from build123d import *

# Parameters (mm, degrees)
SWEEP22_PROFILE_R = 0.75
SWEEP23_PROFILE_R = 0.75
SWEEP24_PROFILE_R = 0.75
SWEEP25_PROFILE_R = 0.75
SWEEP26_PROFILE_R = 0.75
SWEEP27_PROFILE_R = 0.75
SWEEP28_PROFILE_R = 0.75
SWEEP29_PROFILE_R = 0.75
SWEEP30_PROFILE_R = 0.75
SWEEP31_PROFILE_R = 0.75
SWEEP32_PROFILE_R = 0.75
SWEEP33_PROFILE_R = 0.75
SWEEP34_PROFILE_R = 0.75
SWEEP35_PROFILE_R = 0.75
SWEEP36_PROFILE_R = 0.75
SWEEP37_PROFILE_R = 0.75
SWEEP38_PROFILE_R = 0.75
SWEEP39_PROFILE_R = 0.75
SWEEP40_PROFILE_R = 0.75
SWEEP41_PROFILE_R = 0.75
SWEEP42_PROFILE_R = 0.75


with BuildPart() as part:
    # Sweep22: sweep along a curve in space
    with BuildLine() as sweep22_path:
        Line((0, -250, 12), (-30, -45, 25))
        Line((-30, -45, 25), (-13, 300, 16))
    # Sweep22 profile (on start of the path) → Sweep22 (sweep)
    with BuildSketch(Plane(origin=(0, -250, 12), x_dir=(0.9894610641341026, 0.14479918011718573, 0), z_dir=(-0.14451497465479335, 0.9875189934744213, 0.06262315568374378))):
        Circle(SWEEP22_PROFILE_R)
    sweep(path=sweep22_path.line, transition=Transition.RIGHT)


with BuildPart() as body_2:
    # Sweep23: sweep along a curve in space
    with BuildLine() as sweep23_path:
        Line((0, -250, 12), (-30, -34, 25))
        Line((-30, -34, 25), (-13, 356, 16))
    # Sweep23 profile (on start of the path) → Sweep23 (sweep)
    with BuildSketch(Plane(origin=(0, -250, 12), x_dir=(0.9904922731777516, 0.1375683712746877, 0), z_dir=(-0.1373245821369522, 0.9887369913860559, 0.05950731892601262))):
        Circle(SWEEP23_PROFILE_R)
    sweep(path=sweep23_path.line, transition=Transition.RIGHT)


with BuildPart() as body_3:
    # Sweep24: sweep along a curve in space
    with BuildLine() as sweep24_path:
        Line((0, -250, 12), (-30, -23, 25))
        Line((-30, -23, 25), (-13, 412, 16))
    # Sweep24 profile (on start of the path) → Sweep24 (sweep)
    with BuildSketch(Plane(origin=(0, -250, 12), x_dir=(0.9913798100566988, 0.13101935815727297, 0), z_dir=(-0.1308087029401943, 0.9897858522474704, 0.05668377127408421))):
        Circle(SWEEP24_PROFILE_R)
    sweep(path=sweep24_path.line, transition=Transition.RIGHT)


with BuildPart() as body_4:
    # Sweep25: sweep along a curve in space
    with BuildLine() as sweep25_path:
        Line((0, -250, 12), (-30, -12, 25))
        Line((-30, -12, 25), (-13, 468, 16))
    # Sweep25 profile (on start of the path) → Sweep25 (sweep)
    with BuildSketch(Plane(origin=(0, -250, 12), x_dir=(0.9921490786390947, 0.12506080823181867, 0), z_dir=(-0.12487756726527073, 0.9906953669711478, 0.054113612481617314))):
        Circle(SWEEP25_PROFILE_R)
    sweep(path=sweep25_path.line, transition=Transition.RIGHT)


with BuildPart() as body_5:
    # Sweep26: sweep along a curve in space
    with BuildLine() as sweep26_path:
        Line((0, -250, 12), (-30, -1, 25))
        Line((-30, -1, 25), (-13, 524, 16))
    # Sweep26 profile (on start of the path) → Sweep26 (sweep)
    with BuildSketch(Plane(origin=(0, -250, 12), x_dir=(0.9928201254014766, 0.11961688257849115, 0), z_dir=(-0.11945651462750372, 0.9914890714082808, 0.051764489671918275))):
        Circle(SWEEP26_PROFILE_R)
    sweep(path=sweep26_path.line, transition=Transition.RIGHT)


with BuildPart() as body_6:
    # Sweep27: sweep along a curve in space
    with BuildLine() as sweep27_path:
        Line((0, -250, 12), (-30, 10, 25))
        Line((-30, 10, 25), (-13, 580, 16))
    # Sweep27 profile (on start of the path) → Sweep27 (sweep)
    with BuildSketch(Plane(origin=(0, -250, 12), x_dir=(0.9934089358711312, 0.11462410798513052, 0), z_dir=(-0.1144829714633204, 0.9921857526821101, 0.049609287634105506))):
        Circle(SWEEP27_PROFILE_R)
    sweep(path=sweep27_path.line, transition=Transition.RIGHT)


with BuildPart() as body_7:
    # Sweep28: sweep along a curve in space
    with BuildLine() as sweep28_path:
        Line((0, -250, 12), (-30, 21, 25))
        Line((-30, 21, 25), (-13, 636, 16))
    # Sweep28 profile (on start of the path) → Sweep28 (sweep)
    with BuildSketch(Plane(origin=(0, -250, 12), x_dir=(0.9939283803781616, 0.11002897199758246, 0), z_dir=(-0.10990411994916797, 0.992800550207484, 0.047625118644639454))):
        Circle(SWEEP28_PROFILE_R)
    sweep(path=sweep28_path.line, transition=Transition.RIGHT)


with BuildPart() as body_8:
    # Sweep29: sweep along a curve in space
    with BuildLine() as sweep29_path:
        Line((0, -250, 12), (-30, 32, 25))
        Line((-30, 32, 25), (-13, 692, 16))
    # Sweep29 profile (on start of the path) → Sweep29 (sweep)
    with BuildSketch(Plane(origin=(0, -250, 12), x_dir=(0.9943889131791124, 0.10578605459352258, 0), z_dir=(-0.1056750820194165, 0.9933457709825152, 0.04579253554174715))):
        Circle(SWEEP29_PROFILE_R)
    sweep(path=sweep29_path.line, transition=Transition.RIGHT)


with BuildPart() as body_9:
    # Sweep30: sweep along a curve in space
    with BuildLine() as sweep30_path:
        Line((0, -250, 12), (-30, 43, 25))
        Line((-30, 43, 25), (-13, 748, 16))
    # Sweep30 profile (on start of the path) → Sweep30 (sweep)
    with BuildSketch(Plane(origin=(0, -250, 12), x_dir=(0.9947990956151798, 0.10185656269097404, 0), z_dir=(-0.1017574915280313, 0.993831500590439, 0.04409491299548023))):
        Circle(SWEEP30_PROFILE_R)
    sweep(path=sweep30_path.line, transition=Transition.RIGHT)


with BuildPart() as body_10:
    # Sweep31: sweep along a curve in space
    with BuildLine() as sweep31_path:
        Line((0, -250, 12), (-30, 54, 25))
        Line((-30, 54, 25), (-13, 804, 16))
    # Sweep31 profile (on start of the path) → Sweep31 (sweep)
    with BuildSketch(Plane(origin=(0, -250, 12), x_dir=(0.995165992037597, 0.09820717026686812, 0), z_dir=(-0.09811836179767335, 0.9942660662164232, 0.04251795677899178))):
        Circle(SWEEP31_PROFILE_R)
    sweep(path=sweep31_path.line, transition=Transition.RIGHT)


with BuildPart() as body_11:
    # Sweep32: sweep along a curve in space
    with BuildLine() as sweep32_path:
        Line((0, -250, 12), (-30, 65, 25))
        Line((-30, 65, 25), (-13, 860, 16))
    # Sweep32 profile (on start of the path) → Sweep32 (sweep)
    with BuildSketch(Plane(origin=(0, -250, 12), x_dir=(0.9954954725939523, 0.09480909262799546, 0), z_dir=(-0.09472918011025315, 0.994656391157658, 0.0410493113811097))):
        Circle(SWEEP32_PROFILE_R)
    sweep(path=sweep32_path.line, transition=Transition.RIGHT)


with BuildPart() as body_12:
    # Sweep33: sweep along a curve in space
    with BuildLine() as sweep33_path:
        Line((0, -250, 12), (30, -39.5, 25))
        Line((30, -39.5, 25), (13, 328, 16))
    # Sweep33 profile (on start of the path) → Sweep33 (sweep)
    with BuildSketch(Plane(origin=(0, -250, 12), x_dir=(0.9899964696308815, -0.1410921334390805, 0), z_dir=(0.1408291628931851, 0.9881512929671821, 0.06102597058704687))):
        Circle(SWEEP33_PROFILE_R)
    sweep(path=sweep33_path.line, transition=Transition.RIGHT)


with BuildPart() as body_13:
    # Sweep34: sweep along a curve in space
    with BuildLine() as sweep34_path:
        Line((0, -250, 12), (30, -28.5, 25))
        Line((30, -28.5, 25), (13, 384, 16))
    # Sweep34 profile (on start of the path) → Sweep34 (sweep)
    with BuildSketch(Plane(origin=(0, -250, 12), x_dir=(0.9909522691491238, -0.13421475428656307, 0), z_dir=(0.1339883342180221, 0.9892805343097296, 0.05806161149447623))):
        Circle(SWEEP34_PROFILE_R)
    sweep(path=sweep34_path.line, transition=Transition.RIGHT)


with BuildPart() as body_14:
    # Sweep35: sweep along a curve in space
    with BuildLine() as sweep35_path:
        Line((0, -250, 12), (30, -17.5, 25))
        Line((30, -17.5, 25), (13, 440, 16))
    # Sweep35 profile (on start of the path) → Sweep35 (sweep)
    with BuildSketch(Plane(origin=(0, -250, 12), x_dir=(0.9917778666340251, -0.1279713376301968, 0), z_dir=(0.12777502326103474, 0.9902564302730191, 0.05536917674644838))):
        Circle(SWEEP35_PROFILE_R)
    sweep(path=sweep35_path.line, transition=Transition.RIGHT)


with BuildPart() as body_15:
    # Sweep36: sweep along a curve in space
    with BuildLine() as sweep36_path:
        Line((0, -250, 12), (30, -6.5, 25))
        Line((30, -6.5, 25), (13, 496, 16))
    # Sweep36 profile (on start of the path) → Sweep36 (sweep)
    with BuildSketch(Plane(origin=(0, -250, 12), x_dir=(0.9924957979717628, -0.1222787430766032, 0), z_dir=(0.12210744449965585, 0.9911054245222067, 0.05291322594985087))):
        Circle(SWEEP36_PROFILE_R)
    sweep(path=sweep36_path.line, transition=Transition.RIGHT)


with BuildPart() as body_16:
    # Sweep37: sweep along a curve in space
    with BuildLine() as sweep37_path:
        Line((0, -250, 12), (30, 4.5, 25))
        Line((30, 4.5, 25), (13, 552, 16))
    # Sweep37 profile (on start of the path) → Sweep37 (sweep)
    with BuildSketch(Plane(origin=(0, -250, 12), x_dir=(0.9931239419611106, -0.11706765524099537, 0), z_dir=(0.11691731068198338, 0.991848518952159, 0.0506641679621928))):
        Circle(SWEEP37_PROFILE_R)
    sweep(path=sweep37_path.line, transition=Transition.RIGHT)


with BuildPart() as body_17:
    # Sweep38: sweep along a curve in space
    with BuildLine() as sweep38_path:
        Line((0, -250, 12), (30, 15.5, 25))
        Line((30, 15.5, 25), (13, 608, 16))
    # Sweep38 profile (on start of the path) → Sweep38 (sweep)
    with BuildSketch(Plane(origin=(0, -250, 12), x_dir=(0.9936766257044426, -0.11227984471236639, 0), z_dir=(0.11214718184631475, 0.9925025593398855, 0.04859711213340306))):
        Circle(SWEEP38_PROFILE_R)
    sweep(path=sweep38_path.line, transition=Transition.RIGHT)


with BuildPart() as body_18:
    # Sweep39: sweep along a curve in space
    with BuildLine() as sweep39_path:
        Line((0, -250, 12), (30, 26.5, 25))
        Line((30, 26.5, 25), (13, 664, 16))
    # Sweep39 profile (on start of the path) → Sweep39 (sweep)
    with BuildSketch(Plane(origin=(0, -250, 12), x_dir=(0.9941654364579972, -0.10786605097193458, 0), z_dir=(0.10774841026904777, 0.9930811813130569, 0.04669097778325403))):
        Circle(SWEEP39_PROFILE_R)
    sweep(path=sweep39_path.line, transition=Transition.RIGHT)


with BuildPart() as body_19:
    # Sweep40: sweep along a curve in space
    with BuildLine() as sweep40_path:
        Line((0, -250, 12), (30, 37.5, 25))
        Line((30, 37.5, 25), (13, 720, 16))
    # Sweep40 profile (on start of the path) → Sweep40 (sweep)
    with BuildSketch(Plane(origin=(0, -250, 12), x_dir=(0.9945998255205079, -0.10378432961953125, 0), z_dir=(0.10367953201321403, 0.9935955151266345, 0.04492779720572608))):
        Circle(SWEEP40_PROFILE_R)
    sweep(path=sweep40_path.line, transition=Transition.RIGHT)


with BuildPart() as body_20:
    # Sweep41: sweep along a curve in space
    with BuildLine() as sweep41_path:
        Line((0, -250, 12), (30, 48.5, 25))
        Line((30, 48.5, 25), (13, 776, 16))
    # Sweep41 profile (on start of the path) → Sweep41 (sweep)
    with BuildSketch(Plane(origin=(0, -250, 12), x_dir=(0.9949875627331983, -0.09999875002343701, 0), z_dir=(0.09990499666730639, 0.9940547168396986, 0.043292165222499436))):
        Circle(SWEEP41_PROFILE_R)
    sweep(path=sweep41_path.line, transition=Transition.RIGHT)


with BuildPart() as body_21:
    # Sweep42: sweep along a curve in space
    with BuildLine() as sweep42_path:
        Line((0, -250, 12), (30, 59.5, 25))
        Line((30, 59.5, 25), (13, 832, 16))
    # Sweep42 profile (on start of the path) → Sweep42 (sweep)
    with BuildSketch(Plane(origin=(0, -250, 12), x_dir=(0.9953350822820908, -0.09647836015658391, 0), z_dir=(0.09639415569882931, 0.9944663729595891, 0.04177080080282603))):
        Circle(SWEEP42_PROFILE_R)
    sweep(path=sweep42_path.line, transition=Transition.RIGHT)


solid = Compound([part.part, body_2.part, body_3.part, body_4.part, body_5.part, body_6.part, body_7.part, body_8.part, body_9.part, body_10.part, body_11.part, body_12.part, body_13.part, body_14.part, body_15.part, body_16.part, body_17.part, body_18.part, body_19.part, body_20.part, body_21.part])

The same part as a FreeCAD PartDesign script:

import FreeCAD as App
import Part
import Sketcher
from FreeCAD import Vector

doc = App.newDocument("Part")
body = doc.addObject("PartDesign::Body", "Body")

sketch1 = body.newObject("Sketcher::SketchObject", "Sketch")
sketch1.Placement = App.Placement(Vector(0, -250, 12), App.Rotation(Vector(0.989461064, 0.14479918, 0), Vector(-0.009067782, 0.061963175, -0.998037243), Vector(-0.144514975, 0.987518993, 0.062623156), "ZXY"))
sketch1.addGeometry(Part.Circle(Vector(0, 0, 0), Vector(0, 0, 1), 0.75), False)
sketch1.addConstraint([
    Sketcher.Constraint("Coincident", 0, 3, -1, 1),
    Sketcher.Constraint("Diameter", 0, 1.5),
])

sketch2 = body.newObject("Sketcher::SketchObject", "Sketch001")
sketch2.Placement = App.Placement(Vector(4.204987, 0.03255, 9.19052), App.Rotation(Vector(-0.909339511, 0, 0.416054868), Vector(-0.001339958, 0.999994814, -0.002928645), Vector(-0.416052711, -0.003220629, -0.909334795), "ZXY"))
sketch2.addGeometry([
    Part.LineSegment(Vector(4.992658, -250.033847, 0), Vector(37.681557, -45.032784, 0)),
    Part.LineSegment(Vector(37.681557, -45.032784, 0), Vector(18.478292, 299.969005, 0)),
], False)
sketch2.addConstraint([
    Sketcher.Constraint("Coincident", 0, 2, 1, 1),
    Sketcher.Constraint("DistanceX", 0, 1, 0, 2, 32.688899),
    Sketcher.Constraint("DistanceX", -1, 1, 0, 1, 4.992658),
    Sketcher.Constraint("DistanceX", -1, 1, 1, 2, 18.478292),
    Sketcher.Constraint("DistanceY", 0, 2, 1, 2, 345.001789),
    Sketcher.Constraint("Distance", 0, 207.590944),
    Sketcher.Constraint("DistanceY", 0, 1, -1, 1, 250.033847),
])
doc.recompute()

additivepipe = body.newObject("PartDesign::AdditivePipe", "AdditivePipe")
additivepipe.Profile = sketch1
additivepipe.Spine = (sketch2, ["Edge1", "Edge2"])
additivepipe.Transition = "Right corner"
body2 = doc.addObject("PartDesign::Body", "Body001")

sketch3 = body2.newObject("Sketcher::SketchObject", "Sketch002")
sketch3.Placement = App.Placement(Vector(0, -250, 12), App.Rotation(Vector(0.990492273, 0.137568371, 0), Vector(-0.008186325, 0.05894154, -0.998227869), Vector(-0.137324582, 0.988736991, 0.059507319), "ZXY"))
sketch3.addGeometry(Part.Circle(Vector(0, 0, 0), Vector(0, 0, 1), 0.75), False)
sketch3.addConstraint([
    Sketcher.Constraint("Coincident", 0, 3, -1, 1),
    Sketcher.Constraint("Diameter", 0, 1.5),
])

sketch4 = body2.newObject("Sketcher::SketchObject", "Sketch003")
sketch4.Placement = App.Placement(Vector(4.230899, 0.029557, 9.27251), App.Rotation(Vector(0.909769644, 0, -0.415113472), Vector(-0.001203822, 0.999995795, -0.002638316), Vector(0.415111726, 0.002899982, 0.909765819), "ZXY"))
sketch4.addGeometry([
    Part.LineSegment(Vector(-4.981362, -250.030609, 0), Vector(-37.670926, -34.0297, 0)),
    Part.LineSegment(Vector(-37.670926, -34.0297, 0), Vector(-18.468821, 355.97194, 0)),
], False)
sketch4.addConstraint([
    Sketcher.Constraint("Coincident", 0, 2, 1, 1),
    Sketcher.Constraint("DistanceY", 0, 2, -1, 1, 34.0297),
    Sketcher.Constraint("Distance", 1, 390.474071),
    Sketcher.Constraint("DistanceX", 0, 1, -1, 1, 4.981362),
    Sketcher.Constraint("DistanceY", 0, 1, -1, 1, 250.030609),
    Sketcher.Constraint("DistanceX", 1, 2, -1, 1, 18.468821),
    Sketcher.Constraint("DistanceY", -1, 1, 1, 2, 355.97194),
])
doc.recompute()

additivepipe2 = body2.newObject("PartDesign::AdditivePipe", "AdditivePipe001")
additivepipe2.Profile = sketch3
additivepipe2.Spine = (sketch4, ["Edge1", "Edge2"])
additivepipe2.Transition = "Right corner"
body3 = doc.addObject("PartDesign::Body", "Body002")

sketch5 = body3.newObject("Sketcher::SketchObject", "Sketch004")
sketch5.Placement = App.Placement(Vector(0, -250, 12), App.Rotation(Vector(0.99137981, 0.131019358, 0), Vector(-0.007426671, 0.056195146, -0.998392182), Vector(-0.130808703, 0.989785852, 0.056683771), "ZXY"))
sketch5.addGeometry(Part.Circle(Vector(0, 0, 0), Vector(0, 0, 1), 0.75), False)
sketch5.addConstraint([
    Sketcher.Constraint("Coincident", 0, 3, -1, 1),
    Sketcher.Constraint("Diameter", 0, 1.5),
])

sketch6 = body3.newObject("Sketcher::SketchObject", "Sketch005")
sketch6.Placement = App.Placement(Vector(4.251993, 0.027065, 9.339691), App.Rotation(Vector(0.910121157, 0, -0.414342224), Vector(-0.001092786, 0.999996521, -0.002400353), Vector(0.414340783, 0.002637399, 0.910117992), "ZXY"))
sketch6.addGeometry([
    Part.LineSegment(Vector(-4.972107, -250.027934, 0), Vector(-37.66219, -23.027145, 0)),
    Part.LineSegment(Vector(-37.66219, -23.027145, 0), Vector(-18.461051, 411.974367, 0)),
], False)
sketch6.addConstraint([
    Sketcher.Constraint("Coincident", 0, 2, 1, 1),
    Sketcher.Constraint("DistanceY", 0, 1, 1, 2, 662.002302),
    Sketcher.Constraint("Distance", 0, 229.342538),
    Sketcher.Constraint("Distance", 1, 435.425079),
    Sketcher.Constraint("DistanceX", 0, 2, -1, 1, 37.66219),
    Sketcher.Constraint("DistanceX", 1, 2, -1, 1, 18.461051),
    Sketcher.Constraint("DistanceY", 0, 1, -1, 1, 250.027934),
])
doc.recompute()

additivepipe3 = body3.newObject("PartDesign::AdditivePipe", "AdditivePipe002")
additivepipe3.Profile = sketch5
additivepipe3.Spine = (sketch6, ["Edge1", "Edge2"])
additivepipe3.Transition = "Right corner"
body4 = doc.addObject("PartDesign::Body", "Body003")

sketch7 = body4.newObject("Sketcher::SketchObject", "Sketch006")
sketch7.Placement = App.Placement(Vector(0, -250, 12), App.Rotation(Vector(0.992149079, 0.125060808, 0), Vector(-0.006767492, 0.05368877, -0.998534785), Vector(-0.124877567, 0.990695367, 0.054113612), "ZXY"))
sketch7.addGeometry(Part.Circle(Vector(0, 0, 0), Vector(0, 0, 1), 0.75), False)
sketch7.addConstraint([
    Sketcher.Constraint("Coincident", 0, 3, -1, 1),
    Sketcher.Constraint("Diameter", 0, 1.5),
])

sketch8 = body4.newObject("Sketcher::SketchObject", "Sketch007")
sketch8.Placement = App.Placement(Vector(4.269495, 0.024959, 9.395742), App.Rotation(Vector(-0.910413799, 0, 0.413698822), Vector(-0.001000497, 0.999997076, -0.002201761), Vector(-0.413697612, -0.002418418, -0.910411136), "ZXY"))
sketch8.addGeometry([
    Part.LineSegment(Vector(4.964386, -250.02569, 0), Vector(37.654885, -12.024994, 0)),
    Part.LineSegment(Vector(37.654885, -12.024994, 0), Vector(18.454561, 467.97641, 0)),
], False)
sketch8.addConstraint([
    Sketcher.Constraint("Coincident", 0, 2, 1, 1),
    Sketcher.Constraint("Distance", 0, 240.235301),
    Sketcher.Constraint("DistanceX", 0, 1, 0, 2, 32.690499),
    Sketcher.Constraint("DistanceY", 0, 1, 1, 2, 718.0021),
    Sketcher.Constraint("DistanceY", 0, 1, -1, 1, 250.02569),
    Sketcher.Constraint("DistanceX", -1, 1, 1, 2, 18.454561),
    Sketcher.Constraint("Distance", 1, 480.385262),
])
doc.recompute()

additivepipe4 = body4.newObject("PartDesign::AdditivePipe", "AdditivePipe003")
additivepipe4.Profile = sketch7
additivepipe4.Spine = (sketch8, ["Edge1", "Edge2"])
additivepipe4.Transition = "Right corner"
body5 = doc.addObject("PartDesign::Body", "Body004")

sketch9 = body5.newObject("Sketcher::SketchObject", "Sketch008")
sketch9.Placement = App.Placement(Vector(0, -250, 12), App.Rotation(Vector(0.992820125, 0.119616883, 0), Vector(-0.006191907, 0.051392827, -0.998659319), Vector(-0.119456515, 0.991489071, 0.05176449), "ZXY"))
sketch9.addGeometry(Part.Circle(Vector(0, 0, 0), Vector(0, 0, 1), 0.75), False)
sketch9.addConstraint([
    Sketcher.Constraint("Coincident", 0, 3, -1, 1),
    Sketcher.Constraint("Diameter", 0, 1.5),
])

sketch10 = body5.newObject("Sketcher::SketchObject", "Sketch009")
sketch10.Placement = App.Placement(Vector(4.284252, 0.023156, 9.443218), App.Rotation(Vector(-0.910661214, 0, 0.413153909), Vector(-0.000922578, 0.999997506, -0.002033517), Vector(-0.413152879, -0.002233012, -0.910658944), "ZXY"))
sketch10.addGeometry([
    Part.LineSegment(Vector(4.957847, -250.023779, 0), Vector(37.648684, -1.023158, 0)),
    Part.LineSegment(Vector(37.648684, -1.023158, 0), Vector(18.449058, 523.97815, 0)),
], False)
sketch10.addConstraint([
    Sketcher.Constraint("Coincident", 0, 2, 1, 1),
    Sketcher.Constraint("DistanceY", 0, 1, -1, 1, 250.023779),
    Sketcher.Constraint("DistanceY", 0, 2, -1, 1, 1.023158),
    Sketcher.Constraint("DistanceX", -1, 1, 1, 2, 18.449058),
    Sketcher.Constraint("DistanceY", -1, 1, 1, 2, 523.97815),
    Sketcher.Constraint("DistanceX", 0, 1, 1, 2, 13.491211),
    Sketcher.Constraint("Distance", 0, 251.137412),
])
doc.recompute()

additivepipe5 = body5.newObject("PartDesign::AdditivePipe", "AdditivePipe004")
additivepipe5.Profile = sketch9
additivepipe5.Spine = (sketch10, ["Edge1", "Edge2"])
additivepipe5.Transition = "Right corner"
body6 = doc.addObject("PartDesign::Body", "Body005")

sketch11 = body6.newObject("Sketcher::SketchObject", "Sketch010")
sketch11.Placement = App.Placement(Vector(0, -250, 12), App.Rotation(Vector(0.993408936, 0.114624108, 0), Vector(-0.00568642, 0.04928231, -0.998768702), Vector(-0.114482971, 0.992185753, 0.049609288), "ZXY"))
sketch11.addGeometry(Part.Circle(Vector(0, 0, 0), Vector(0, 0, 1), 0.75), False)
sketch11.addConstraint([
    Sketcher.Constraint("Coincident", 0, 3, -1, 1),
    Sketcher.Constraint("Diameter", 0, 1.5),
])

sketch12 = body6.newObject("Sketcher::SketchObject", "Sketch011")
sketch12.Placement = App.Placement(Vector(4.296862, 0.021594, 9.483947), App.Rotation(Vector(-0.910873135, 0, 0.412686481), Vector(-0.000855916, 0.999997849, -0.00188916), Vector(-0.412685593, -0.00207401, -0.910871176), "ZXY"))
sketch12.addGeometry([
    Part.LineSegment(Vector(4.952238, -250.022132, 0), Vector(37.643356, 9.978427, 0)),
    Part.LineSegment(Vector(37.643356, 9.978427, 0), Vector(18.444334, 579.979652, 0)),
], False)
sketch12.addConstraint([
    Sketcher.Constraint("Coincident", 0, 2, 1, 1),
    Sketcher.Constraint("Distance", 1, 570.324469),
    Sketcher.Constraint("DistanceX", 0, 1, 0, 2, 32.691118),
    Sketcher.Constraint("DistanceY", 0, 1, 0, 2, 260.000559),
    Sketcher.Constraint("DistanceX", 1, 2, 0, 2, 19.199022),
    Sketcher.Constraint("DistanceX", -1, 1, 0, 1, 4.952238),
    Sketcher.Constraint("DistanceY", 0, 1, -1, 1, 250.022132),
])
doc.recompute()

additivepipe6 = body6.newObject("PartDesign::AdditivePipe", "AdditivePipe005")
additivepipe6.Profile = sketch11
additivepipe6.Spine = (sketch12, ["Edge1", "Edge2"])
additivepipe6.Transition = "Right corner"
body7 = doc.addObject("PartDesign::Body", "Body006")

sketch13 = body7.newObject("Sketcher::SketchObject", "Sketch012")
sketch13.Placement = App.Placement(Vector(0, -250, 12), App.Rotation(Vector(0.99392838, 0.110028972, 0), Vector(-0.005240143, 0.047335957, -0.99886528), Vector(-0.10990412, 0.99280055, 0.047625119), "ZXY"))
sketch13.addGeometry(Part.Circle(Vector(0, 0, 0), Vector(0, 0, 1), 0.75), False)
sketch13.addConstraint([
    Sketcher.Constraint("Coincident", 0, 3, -1, 1),
    Sketcher.Constraint("Diameter", 0, 1.5),
])

sketch14 = body7.newObject("Sketcher::SketchObject", "Sketch013")
sketch14.Placement = App.Placement(Vector(4.307762, 0.02023, 9.519271), App.Rotation(Vector(-0.911056688, 0, 0.412281107), Vector(-0.000798236, 0.999998125, -0.001763938), Vector(-0.412280334, -0.001936145, -0.91105498), "ZXY"))
sketch14.addGeometry([
    Part.LineSegment(Vector(4.947373, -250.020698, 0), Vector(37.638728, 20.979809, 0)),
    Part.LineSegment(Vector(37.638728, 20.979809, 0), Vector(18.440235, 635.980961, 0)),
], False)
sketch14.addConstraint([
    Sketcher.Constraint("Coincident", 0, 2, 1, 1),
    Sketcher.Constraint("Distance", 0, 272.965199),
    Sketcher.Constraint("DistanceY", 0, 1, -1, 1, 250.020698),
    Sketcher.Constraint("Distance", 1, 615.300739),
    Sketcher.Constraint("DistanceX", -1, 1, 0, 2, 37.638728),
    Sketcher.Constraint("DistanceY", -1, 1, 0, 2, 20.979809),
    Sketcher.Constraint("DistanceY", -1, 1, 1, 2, 635.980961),
])
doc.recompute()

additivepipe7 = body7.newObject("PartDesign::AdditivePipe", "AdditivePipe006")
additivepipe7.Profile = sketch13
additivepipe7.Spine = (sketch14, ["Edge1", "Edge2"])
additivepipe7.Transition = "Right corner"
body8 = doc.addObject("PartDesign::Body", "Body007")

sketch15 = body8.newObject("Sketcher::SketchObject", "Sketch014")
sketch15.Placement = App.Placement(Vector(0, -250, 12), App.Rotation(Vector(0.994388913, 0.105786055, 0), Vector(-0.004844212, 0.04553559, -0.998950971), Vector(-0.105675082, 0.993345771, 0.045792536), "ZXY"))
sketch15.addGeometry(Part.Circle(Vector(0, 0, 0), Vector(0, 0, 1), 0.75), False)
sketch15.addConstraint([
    Sketcher.Constraint("Coincident", 0, 3, -1, 1),
    Sketcher.Constraint("Diameter", 0, 1.5),
])

sketch16 = body8.newObject("Sketcher::SketchObject", "Sketch015")
sketch16.Placement = App.Placement(Vector(4.317277, 0.019027, 9.550199), App.Rotation(Vector(-0.911217211, 0, 0.4119262), Vector(-0.000747838, 0.999998352, -0.001654284), Vector(-0.411925521, -0.001815466, -0.91121571), "ZXY"))
sketch16.addGeometry([
    Part.LineSegment(Vector(4.943114, -250.01944, 0), Vector(37.634671, 31.981025, 0)),
    Part.LineSegment(Vector(37.634671, 31.981025, 0), Vector(18.436643, 691.982114, 0)),
], False)
sketch16.addConstraint([
    Sketcher.Constraint("Coincident", 0, 2, 1, 1),
    Sketcher.Constraint("DistanceY", 0, 1, -1, 1, 250.01944),
    Sketcher.Constraint("DistanceX", -1, 1, 0, 2, 37.634671),
    Sketcher.Constraint("DistanceX", 1, 2, 0, 2, 19.198028),
    Sketcher.Constraint("DistanceY", 0, 2, 1, 2, 660.001088),
    Sketcher.Constraint("DistanceX", 0, 1, 1, 2, 13.493529),
    Sketcher.Constraint("Distance", 0, 283.889063),
])
doc.recompute()

additivepipe8 = body8.newObject("PartDesign::AdditivePipe", "AdditivePipe007")
additivepipe8.Profile = sketch15
additivepipe8.Spine = (sketch16, ["Edge1", "Edge2"])
additivepipe8.Transition = "Right corner"
body9 = doc.addObject("PartDesign::Body", "Body008")

sketch17 = body9.newObject("Sketcher::SketchObject", "Sketch016")
sketch17.Placement = App.Placement(Vector(0, -250, 12), App.Rotation(Vector(0.994799096, 0.101856563, 0), Vector(-0.004491356, 0.04386558, -0.999027347), Vector(-0.101757492, 0.993831501, 0.044094913), "ZXY"))
sketch17.addGeometry(Part.Circle(Vector(0, 0, 0), Vector(0, 0, 1), 0.75), False)
sketch17.addConstraint([
    Sketcher.Constraint("Coincident", 0, 3, -1, 1),
    Sketcher.Constraint("Diameter", 0, 1.5),
])

sketch18 = body9.newObject("Sketcher::SketchObject", "Sketch017")
sketch18.Placement = App.Placement(Vector(4.325655, 0.017959, 9.577503), App.Rotation(Vector(-0.911358783, 0, 0.411612887), Vector(-0.000703425, 0.99999854, -0.001557465), Vector(-0.411612286, -0.001708948, -0.911357452), "ZXY"))
sketch18.addGeometry([
    Part.LineSegment(Vector(4.939355, -250.018324, 0), Vector(37.631086, 42.982103, 0)),
    Part.LineSegment(Vector(37.631086, 42.982103, 0), Vector(18.43347, 747.983133, 0)),
], False)
sketch18.addConstraint([
    Sketcher.Constraint("Coincident", 0, 2, 1, 1),
    Sketcher.Constraint("Distance", 0, 294.818588),
    Sketcher.Constraint("DistanceX", -1, 1, 1, 2, 18.43347),
    Sketcher.Constraint("DistanceX", 0, 1, 0, 2, 32.691731),
    Sketcher.Constraint("DistanceY", 0, 2, 1, 2, 705.001029),
    Sketcher.Constraint("Distance", 1, 705.262362),
    Sketcher.Constraint("DistanceY", 0, 1, -1, 1, 250.018324),
])
doc.recompute()

additivepipe9 = body9.newObject("PartDesign::AdditivePipe", "AdditivePipe008")
additivepipe9.Profile = sketch17
additivepipe9.Spine = (sketch18, ["Edge1", "Edge2"])
additivepipe9.Transition = "Right corner"
body10 = doc.addObject("PartDesign::Body", "Body009")

sketch19 = body10.newObject("Sketcher::SketchObject", "Sketch018")
sketch19.Placement = App.Placement(Vector(0, -250, 12), App.Rotation(Vector(0.995165992, 0.09820717, 0), Vector(-0.004175568, 0.042312425, -0.999095703), Vector(-0.098118362, 0.994266066, 0.042517957), "ZXY"))
sketch19.addGeometry(Part.Circle(Vector(0, 0, 0), Vector(0, 0, 1), 0.75), False)
sketch19.addConstraint([
    Sketcher.Constraint("Coincident", 0, 3, -1, 1),
    Sketcher.Constraint("Diameter", 0, 1.5),
])

sketch20 = body10.newObject("Sketcher::SketchObject", "Sketch019")
sketch20.Placement = App.Placement(Vector(4.333089, 0.017005, 9.601786), App.Rotation(Vector(-0.911484572, 0, 0.411334262), Vector(-0.000663991, 0.999998697, -0.001471351), Vector(-0.411333726, -0.001614236, -0.911483384), "ZXY"))
sketch20.addGeometry([
    Part.LineSegment(Vector(4.936011, -250.01733, 0), Vector(37.627894, 53.983066, 0)),
    Part.LineSegment(Vector(37.627894, 53.983066, 0), Vector(18.430648, 803.984042, 0)),
], False)
sketch20.addConstraint([
    Sketcher.Constraint("Coincident", 0, 2, 1, 1),
    Sketcher.Constraint("Distance", 0, 305.753168),
    Sketcher.Constraint("DistanceX", -1, 1, 0, 1, 4.936011),
    Sketcher.Constraint("DistanceY", 0, 1, -1, 1, 250.01733),
    Sketcher.Constraint("Distance", 1, 750.246626),
    Sketcher.Constraint("DistanceX", -1, 1, 0, 2, 37.627894),
    Sketcher.Constraint("DistanceX", -1, 1, 1, 2, 18.430648),
])
doc.recompute()

additivepipe10 = body10.newObject("PartDesign::AdditivePipe", "AdditivePipe009")
additivepipe10.Profile = sketch19
additivepipe10.Spine = (sketch20, ["Edge1", "Edge2"])
additivepipe10.Transition = "Right corner"
body11 = doc.addObject("PartDesign::Body", "Body010")

sketch21 = body11.newObject("Sketcher::SketchObject", "Sketch020")
sketch21.Placement = App.Placement(Vector(0, -250, 12), App.Rotation(Vector(0.995495473, 0.094809093, 0), Vector(-0.003891848, 0.040864403, -0.999157122), Vector(-0.09472918, 0.994656391, 0.041049311), "ZXY"))
sketch21.addGeometry(Part.Circle(Vector(0, 0, 0), Vector(0, 0, 1), 0.75), False)
sketch21.addConstraint([
    Sketcher.Constraint("Coincident", 0, 3, -1, 1),
    Sketcher.Constraint("Diameter", 0, 1.5),
])

sketch22 = body11.newObject("Sketcher::SketchObject", "Sketch021")
sketch22.Placement = App.Placement(Vector(4.339729, 0.016146, 9.623523), App.Rotation(Vector(-0.911597078, 0, 0.411084866), Vector(-0.000628742, 0.99999883, -0.001394261), Vector(-0.411084385, -0.001529471, -0.911596012), "ZXY"))
sketch22.addGeometry([
    Part.LineSegment(Vector(4.933018, -250.016439, 0), Vector(37.625034, 64.98393, 0)),
    Part.LineSegment(Vector(37.625034, 64.98393, 0), Vector(18.42812, 859.984859, 0)),
], False)
sketch22.addConstraint([
    Sketcher.Constraint("Coincident", 0, 2, 1, 1),
    Sketcher.Constraint("DistanceX", 0, 1, 1, 2, 13.495101),
    Sketcher.Constraint("Distance", 0, 316.69228),
    Sketcher.Constraint("Distance", 1, 795.23267),
    Sketcher.Constraint("DistanceX", -1, 1, 0, 1, 4.933018),
    Sketcher.Constraint("DistanceY", 0, 1, -1, 1, 250.016439),
    Sketcher.Constraint("DistanceY", -1, 1, 0, 2, 64.98393),
])
doc.recompute()

additivepipe11 = body11.newObject("PartDesign::AdditivePipe", "AdditivePipe010")
additivepipe11.Profile = sketch21
additivepipe11.Spine = (sketch22, ["Edge1", "Edge2"])
additivepipe11.Transition = "Right corner"
body12 = doc.addObject("PartDesign::Body", "Body011")

sketch23 = body12.newObject("Sketcher::SketchObject", "Sketch022")
sketch23.Placement = App.Placement(Vector(0, -250, 12), App.Rotation(Vector(0.98999647, -0.141092133, 0), Vector(0.008610284, 0.060415496, -0.998136179), Vector(0.140829163, 0.988151293, 0.061025971), "ZXY"))
sketch23.addGeometry(Part.Circle(Vector(0, 0, 0), Vector(0, 0, 1), 0.75), False)
sketch23.addConstraint([
    Sketcher.Constraint("Coincident", 0, 3, -1, 1),
    Sketcher.Constraint("Diameter", 0, 1.5),
])

sketch24 = body12.newObject("Sketcher::SketchObject", "Sketch023")
sketch24.Placement = App.Placement(Vector(-4.218643, 0.030982, 9.233656), App.Rotation(Vector(-0.909565966, 0, -0.415559566), Vector(0.001268249, 0.999995342, -0.002775911), Vector(0.415557631, -0.003051907, -0.90956173), "ZXY"))
sketch24.addGeometry([
    Part.LineSegment(Vector(-4.986715, -250.032146, 0), Vector(-37.675968, -39.531166, 0)),
    Part.LineSegment(Vector(-37.675968, -39.531166, 0), Vector(-18.473311, 327.970545, 0)),
], False)
sketch24.addConstraint([
    Sketcher.Constraint("Coincident", 0, 2, 1, 1),
    Sketcher.Constraint("Distance", 0, 213.024059),
    Sketcher.Constraint("DistanceX", 0, 2, -1, 1, 37.675968),
    Sketcher.Constraint("DistanceX", 1, 2, -1, 1, 18.473311),
    Sketcher.Constraint("DistanceY", 0, 1, 0, 2, 210.50098),
    Sketcher.Constraint("DistanceY", 0, 2, 1, 2, 367.501711),
    Sketcher.Constraint("DistanceY", 0, 1, -1, 1, 250.032146),
])
doc.recompute()

additivepipe12 = body12.newObject("PartDesign::AdditivePipe", "AdditivePipe011")
additivepipe12.Profile = sketch23
additivepipe12.Spine = (sketch24, ["Edge1", "Edge2"])
additivepipe12.Transition = "Right corner"
body13 = doc.addObject("PartDesign::Body", "Body012")

sketch25 = body13.newObject("Sketcher::SketchObject", "Sketch024")
sketch25.Placement = App.Placement(Vector(0, -250, 12), App.Rotation(Vector(0.990952269, -0.134214754, 0), Vector(0.007792725, 0.057536285, -0.998313001), Vector(0.133988334, 0.989280534, 0.058061611), "ZXY"))
sketch25.addGeometry(Part.Circle(Vector(0, 0, 0), Vector(0, 0, 1), 0.75), False)
sketch25.addConstraint([
    Sketcher.Constraint("Coincident", 0, 3, -1, 1),
    Sketcher.Constraint("Diameter", 0, 1.5),
])

sketch26 = body13.newObject("Sketcher::SketchObject", "Sketch025")
sketch26.Placement = App.Placement(Vector(-4.24196, 0.028257, 9.307689), App.Rotation(Vector(0.909953817, 0, 0.414709599), Vector(0.001145621, 0.999996185, -0.002513716), Vector(-0.414708016, 0.002762465, 0.909950345), "ZXY"))
sketch26.addGeometry([
    Part.LineSegment(Vector(4.976515, -250.029211, 0), Vector(37.666354, -28.528366, 0)),
    Part.LineSegment(Vector(37.666354, -28.528366, 0), Vector(18.464753, 383.973209, 0)),
], False)
sketch26.addConstraint([
    Sketcher.Constraint("Coincident", 0, 2, 1, 1),
    Sketcher.Constraint("DistanceX", 1, 2, 0, 2, 19.201601),
    Sketcher.Constraint("Distance", 0, 223.900089),
    Sketcher.Constraint("Distance", 1, 412.948242),
    Sketcher.Constraint("DistanceY", 0, 1, -1, 1, 250.029211),
    Sketcher.Constraint("DistanceY", -1, 1, 1, 2, 383.973209),
    Sketcher.Constraint("DistanceX", -1, 1, 0, 1, 4.976515),
])
doc.recompute()

additivepipe13 = body13.newObject("PartDesign::AdditivePipe", "AdditivePipe012")
additivepipe13.Profile = sketch25
additivepipe13.Spine = (sketch26, ["Edge1", "Edge2"])
additivepipe13.Transition = "Right corner"
body14 = doc.addObject("PartDesign::Body", "Body013")

sketch27 = body14.newObject("Sketcher::SketchObject", "Sketch026")
sketch27.Placement = App.Placement(Vector(0, -250, 12), App.Rotation(Vector(0.991777867, -0.127971338, 0), Vector(0.007085668, 0.054913924, -0.998465951), Vector(0.127775023, 0.99025643, 0.055369177), "ZXY"))
sketch27.addGeometry(Part.Circle(Vector(0, 0, 0), Vector(0, 0, 1), 0.75), False)
sketch27.addConstraint([
    Sketcher.Constraint("Coincident", 0, 3, -1, 1),
    Sketcher.Constraint("Diameter", 0, 1.5),
])

sketch28 = body14.newObject("Sketcher::SketchObject", "Sketch027")
sketch28.Placement = App.Placement(Vector(-4.261133, 0.02597, 9.368928), App.Rotation(Vector(-0.910273872, 0, -0.414006615), Vector(0.001044608, 0.999996817, -0.002296773), Vector(0.414005297, -0.002523167, -0.910270975), "ZXY"))
sketch28.addGeometry([
    Part.LineSegment(Vector(-4.968079, -250.026765, 0), Vector(-37.658382, -17.526025, 0)),
    Part.LineSegment(Vector(-37.658382, -17.526025, 0), Vector(-18.457666, 439.975431, 0)),
], False)
sketch28.addConstraint([
    Sketcher.Constraint("Coincident", 0, 2, 1, 1),
    Sketcher.Constraint("Distance", 0, 234.78767),
    Sketcher.Constraint("DistanceX", 0, 1, -1, 1, 4.968079),
    Sketcher.Constraint("DistanceX", 0, 2, -1, 1, 37.658382),
    Sketcher.Constraint("DistanceY", -1, 1, 1, 2, 439.975431),
    Sketcher.Constraint("Distance", 1, 457.904193),
    Sketcher.Constraint("DistanceY", 0, 1, -1, 1, 250.026765),
])
doc.recompute()

additivepipe14 = body14.newObject("PartDesign::AdditivePipe", "AdditivePipe013")
additivepipe14.Profile = sketch27
additivepipe14.Spine = (sketch28, ["Edge1", "Edge2"])
additivepipe14.Transition = "Right corner"
body15 = doc.addObject("PartDesign::Body", "Body014")

sketch29 = body15.newObject("Sketcher::SketchObject", "Sketch028")
sketch29.Placement = App.Placement(Vector(0, -250, 12), App.Rotation(Vector(0.992495798, -0.122278743, 0), Vector(0.006470163, 0.052516154, -0.998599114), Vector(0.122107444, 0.991105425, 0.052913226), "ZXY"))
sketch29.addGeometry(Part.Circle(Vector(0, 0, 0), Vector(0, 0, 1), 0.75), False)
sketch29.addConstraint([
    Sketcher.Constraint("Coincident", 0, 3, -1, 1),
    Sketcher.Constraint("Diameter", 0, 1.5),
])

sketch30 = body15.newObject("Sketcher::SketchObject", "Sketch029")
sketch30.Placement = App.Placement(Vector(-4.277175, 0.024024, 9.420424), App.Rotation(Vector(-0.910542478, 0, -0.413415524), Vector(0.000959959, 0.999997304, -0.002114298), Vector(0.413414409, -0.00232202, -0.910540024), "ZXY"))
sketch30.addGeometry([
    Part.LineSegment(Vector(-4.960986, -250.024698, 0), Vector(-37.651662, -6.524041, 0)),
    Part.LineSegment(Vector(-37.651662, -6.524041, 0), Vector(-18.451701, 495.977314, 0)),
], False)
sketch30.addConstraint([
    Sketcher.Constraint("Coincident", 0, 2, 1, 1),
    Sketcher.Constraint("DistanceX", 1, 2, -1, 1, 18.451701),
    Sketcher.Constraint("DistanceY", 0, 2, -1, 1, 6.524041),
    Sketcher.Constraint("DistanceX", 0, 2, 1, 2, 19.199962),
    Sketcher.Constraint("DistanceY", 0, 1, 1, 2, 746.002011),
    Sketcher.Constraint("Distance", 0, 245.685266),
    Sketcher.Constraint("Distance", 1, 502.868025),
])
doc.recompute()

additivepipe15 = body15.newObject("PartDesign::AdditivePipe", "AdditivePipe014")
additivepipe15.Profile = sketch29
additivepipe15.Spine = (sketch30, ["Edge1", "Edge2"])
additivepipe15.Transition = "Right corner"
body16 = doc.addObject("PartDesign::Body", "Body015")

sketch31 = body16.newObject("Sketcher::SketchObject", "Sketch030")
sketch31.Placement = App.Placement(Vector(0, -250, 12), App.Rotation(Vector(0.993123942, -0.117067655, 0), Vector(0.005931135, 0.050315798, -0.998715746), Vector(0.116917311, 0.991848519, 0.050664168), "ZXY"))
sketch31.addGeometry(Part.Circle(Vector(0, 0, 0), Vector(0, 0, 1), 0.75), False)
sketch31.addConstraint([
    Sketcher.Constraint("Coincident", 0, 3, -1, 1),
    Sketcher.Constraint("Diameter", 0, 1.5),
])

sketch32 = body16.newObject("Sketcher::SketchObject", "Sketch031")
sketch32.Placement = App.Placement(Vector(-4.290795, 0.022348, 9.464333), App.Rotation(Vector(-0.910771116, 0, -0.412911581), Vector(0.000887998, 0.999997687, -0.001958683), Vector(0.412910626, -0.002150576, -0.91076901), "ZXY"))
sketch32.addGeometry([
    Part.LineSegment(Vector(-4.954939, -250.022926, 0), Vector(-37.645923, 4.477662, 0)),
    Part.LineSegment(Vector(-37.645923, 4.477662, 0), Vector(-18.44661, 551.978928, 0)),
], False)
sketch32.addConstraint([
    Sketcher.Constraint("Coincident", 0, 2, 1, 1),
    Sketcher.Constraint("Distance", 0, 256.591601),
    Sketcher.Constraint("DistanceX", 0, 1, -1, 1, 4.954939),
    Sketcher.Constraint("DistanceX", 1, 2, -1, 1, 18.44661),
    Sketcher.Constraint("DistanceY", -1, 1, 1, 2, 551.978928),
    Sketcher.Constraint("DistanceY", 0, 1, 0, 2, 254.500588),
    Sketcher.Constraint("Distance", 1, 547.837795),
])
doc.recompute()

additivepipe16 = body16.newObject("PartDesign::AdditivePipe", "AdditivePipe015")
additivepipe16.Profile = sketch31
additivepipe16.Spine = (sketch32, ["Edge1", "Edge2"])
additivepipe16.Transition = "Right corner"
body17 = doc.addObject("PartDesign::Body", "Body016")

sketch33 = body17.newObject("Sketcher::SketchObject", "Sketch032")
sketch33.Placement = App.Placement(Vector(0, -250, 12), App.Rotation(Vector(0.993676626, -0.112279845, 0), Vector(0.005456476, 0.048289814, -0.998818462), Vector(0.112147182, 0.992502559, 0.048597112), "ZXY"))
sketch33.addGeometry(Part.Circle(Vector(0, 0, 0), Vector(0, 0, 1), 0.75), False)
sketch33.addConstraint([
    Sketcher.Constraint("Coincident", 0, 3, -1, 1),
    Sketcher.Constraint("Diameter", 0, 1.5),
])

sketch34 = body17.newObject("Sketcher::SketchObject", "Sketch033")
sketch34.Placement = App.Placement(Vector(-4.302504, 0.02089, 9.502215), App.Rotation(Vector(-0.910968089, 0, -0.412476836), Vector(0.000826071, 0.999997994, -0.001824403), Vector(0.412476009, -0.002002708, -0.910966262), "ZXY"))
sketch34.addGeometry([
    Part.LineSegment(Vector(-4.949722, -250.021391, 0), Vector(-37.640964, 15.479141, 0)),
    Part.LineSegment(Vector(-37.640964, 15.479141, 0), Vector(-18.442215, 607.980328, 0)),
], False)
sketch34.addConstraint([
    Sketcher.Constraint("Coincident", 0, 2, 1, 1),
    Sketcher.Constraint("DistanceY", 0, 1, -1, 1, 250.021391),
    Sketcher.Constraint("DistanceY", -1, 1, 0, 2, 15.479141),
    Sketcher.Constraint("DistanceY", -1, 1, 1, 2, 607.980328),
    Sketcher.Constraint("DistanceX", 0, 2, 0, 1, 32.691242),
    Sketcher.Constraint("DistanceX", 0, 2, 1, 2, 19.198749),
    Sketcher.Constraint("DistanceX", 0, 1, -1, 1, 4.949722),
])
doc.recompute()

additivepipe17 = body17.newObject("PartDesign::AdditivePipe", "AdditivePipe016")
additivepipe17.Profile = sketch33
additivepipe17.Spine = (sketch34, ["Edge1", "Edge2"])
additivepipe17.Transition = "Right corner"
body18 = doc.addObject("PartDesign::Body", "Body017")

sketch35 = body18.newObject("Sketcher::SketchObject", "Sketch034")
sketch35.Placement = App.Placement(Vector(0, -250, 12), App.Rotation(Vector(0.994165436, -0.107866051, 0), Vector(0.005036371, 0.046418557, -0.998909381), Vector(0.10774841, 0.993081181, 0.046690978), "ZXY"))
sketch35.addGeometry(Part.Circle(Vector(0, 0, 0), Vector(0, 0, 1), 0.75), False)
sketch35.addConstraint([
    Sketcher.Constraint("Coincident", 0, 3, -1, 1),
    Sketcher.Constraint("Diameter", 0, 1.5),
])

sketch36 = body18.newObject("Sketcher::SketchObject", "Sketch035")
sketch36.Placement = App.Placement(Vector(-4.312675, 0.01961, 9.535231), App.Rotation(Vector(-0.911139549, 0, -0.412097953), Vector(0.000772216, 0.999998244, -0.001707353), Vector(0.412097229, -0.001873865, -0.911137949), "ZXY"))
sketch36.addGeometry([
    Part.LineSegment(Vector(-4.945175, -250.020049, 0), Vector(-37.636635, 26.480436, 0)),
    Part.LineSegment(Vector(-37.636635, 26.480436, 0), Vector(-18.438381, 663.981556, 0)),
], False)
sketch36.addConstraint([
    Sketcher.Constraint("Coincident", 0, 2, 1, 1),
    Sketcher.Constraint("Distance", 0, 278.426382),
    Sketcher.Constraint("Distance", 1, 637.79013),
    Sketcher.Constraint("DistanceY", 0, 1, -1, 1, 250.020049),
    Sketcher.Constraint("DistanceX", 1, 2, -1, 1, 18.438381),
    Sketcher.Constraint("DistanceX", 0, 2, 0, 1, 32.69146),
    Sketcher.Constraint("DistanceY", 0, 2, 1, 2, 637.501119),
])
doc.recompute()

additivepipe18 = body18.newObject("PartDesign::AdditivePipe", "AdditivePipe017")
additivepipe18.Profile = sketch35
additivepipe18.Spine = (sketch36, ["Edge1", "Edge2"])
additivepipe18.Transition = "Right corner"
body19 = doc.addObject("PartDesign::Body", "Body018")

sketch37 = body19.newObject("Sketcher::SketchObject", "Sketch036")
sketch37.Placement = App.Placement(Vector(0, -250, 12), App.Rotation(Vector(0.994599826, -0.10378433, 0), Vector(0.004662801, 0.044685179, -0.998990237), Vector(0.103679532, 0.993595515, 0.044927797), "ZXY"))
sketch37.addGeometry(Part.Circle(Vector(0, 0, 0), Vector(0, 0, 1), 0.75), False)
sketch37.addConstraint([
    Sketcher.Constraint("Coincident", 0, 3, -1, 1),
    Sketcher.Constraint("Diameter", 0, 1.5),
])

sketch38 = body19.newObject("Sketcher::SketchObject", "Sketch037")
sketch38.Placement = App.Placement(Vector(-4.321595, 0.018478, 9.564263), App.Rotation(Vector(0.91129015, 0, 0.411764815), Vector(0.000724952, 0.99999845, -0.001604415), Vector(-0.411764177, 0.001760597, 0.911288737), "ZXY"))
sketch38.addGeometry([
    Part.LineSegment(Vector(4.941178, -250.018865, 0), Vector(37.632825, 37.48158, 0)),
    Part.LineSegment(Vector(37.632825, 37.48158, 0), Vector(18.435009, 719.982638, 0)),
], False)
sketch38.addConstraint([
    Sketcher.Constraint("Coincident", 0, 2, 1, 1),
    Sketcher.Constraint("Distance", 1, 682.771008),
    Sketcher.Constraint("DistanceY", -1, 1, 0, 2, 37.48158),
    Sketcher.Constraint("DistanceX", -1, 1, 1, 2, 18.435009),
    Sketcher.Constraint("DistanceX", 0, 1, 1, 2, 13.493831),
    Sketcher.Constraint("Distance", 0, 289.353158),
    Sketcher.Constraint("DistanceY", 0, 1, -1, 1, 250.018865),
])
doc.recompute()

additivepipe19 = body19.newObject("PartDesign::AdditivePipe", "AdditivePipe018")
additivepipe19.Profile = sketch37
additivepipe19.Spine = (sketch38, ["Edge1", "Edge2"])
additivepipe19.Transition = "Right corner"
body20 = doc.addObject("PartDesign::Body", "Body019")

sketch39 = body20.newObject("Sketcher::SketchObject", "Sketch038")
sketch39.Placement = App.Placement(Vector(0, -250, 12), App.Rotation(Vector(0.994987563, -0.09999875, 0), Vector(0.004329162, 0.043075166, -0.999062455), Vector(0.099904997, 0.994054717, 0.043292165), "ZXY"))
sketch39.addGeometry(Part.Circle(Vector(0, 0, 0), Vector(0, 0, 1), 0.75), False)
sketch39.addConstraint([
    Sketcher.Constraint("Coincident", 0, 3, -1, 1),
    Sketcher.Constraint("Diameter", 0, 1.5),
])

sketch40 = body20.newObject("Sketcher::SketchObject", "Sketch039")
sketch40.Placement = App.Placement(Vector(-4.32948, 0.017469, 9.58999), App.Rotation(Vector(-0.911423481, 0, -0.411469609), Vector(0.000683139, 0.999998622, -0.001513184), Vector(0.411469042, -0.001660242, -0.911422224), "ZXY"))
sketch40.addGeometry([
    Part.LineSegment(Vector(-4.937635, -250.017814, 0), Vector(-37.629445, 48.482598, 0)),
    Part.LineSegment(Vector(-37.629445, 48.482598, 0), Vector(-18.432019, 775.983601, 0)),
], False)
sketch40.addConstraint([
    Sketcher.Constraint("Coincident", 0, 2, 1, 1),
    Sketcher.Constraint("DistanceY", -1, 1, 1, 2, 775.983601),
    Sketcher.Constraint("Distance", 0, 300.285281),
    Sketcher.Constraint("Distance", 1, 727.754251),
    Sketcher.Constraint("DistanceX", 1, 2, -1, 1, 18.432019),
    Sketcher.Constraint("DistanceX", 0, 2, 0, 1, 32.691809),
    Sketcher.Constraint("DistanceX", 0, 1, -1, 1, 4.937635),
])
doc.recompute()

additivepipe20 = body20.newObject("PartDesign::AdditivePipe", "AdditivePipe019")
additivepipe20.Profile = sketch39
additivepipe20.Spine = (sketch40, ["Edge1", "Edge2"])
additivepipe20.Transition = "Right corner"
body21 = doc.addObject("PartDesign::Body", "Body020")

sketch41 = body21.newObject("Sketcher::SketchObject", "Sketch040")
sketch41.Placement = App.Placement(Vector(0, -250, 12), App.Rotation(Vector(0.995335082, -0.09647836, 0), Vector(0.004029978, 0.041575944, -0.999127219), Vector(0.096394156, 0.994466373, 0.041770801), "ZXY"))
sketch41.addGeometry(Part.Circle(Vector(0, 0, 0), Vector(0, 0, 1), 0.75), False)
sketch41.addConstraint([
    Sketcher.Constraint("Coincident", 0, 3, -1, 1),
    Sketcher.Constraint("Diameter", 0, 1.5),
])

sketch42 = body21.newObject("Sketcher::SketchObject", "Sketch041")
sketch42.Placement = App.Placement(Vector(-4.3365, 0.016564, 9.612947), App.Rotation(Vector(-0.91154235, 0, -0.411206206), Vector(0.000645886, 0.999998766, -0.00143177), Vector(0.411205698, -0.001570711, -0.911541226), "ZXY"))
sketch42.addGeometry([
    Part.LineSegment(Vector(-4.934474, -250.016873, 0), Vector(-37.626426, 59.483509, 0)),
    Part.LineSegment(Vector(-37.626426, 59.483509, 0), Vector(-18.42935, 831.984462, 0)),
], False)
sketch42.addConstraint([
    Sketcher.Constraint("Coincident", 0, 2, 1, 1),
    Sketcher.Constraint("DistanceY", -1, 1, 0, 2, 59.483509),
    Sketcher.Constraint("DistanceX", 1, 2, -1, 1, 18.42935),
    Sketcher.Constraint("DistanceY", -1, 1, 1, 2, 831.984462),
    Sketcher.Constraint("DistanceX", 0, 2, 0, 1, 32.691951),
    Sketcher.Constraint("DistanceY", 0, 1, 0, 2, 309.500382),
    Sketcher.Constraint("Distance", 1, 772.739445),
])
doc.recompute()

additivepipe21 = body21.newObject("PartDesign::AdditivePipe", "AdditivePipe020")
additivepipe21.Profile = sketch41
additivepipe21.Spine = (sketch42, ["Edge1", "Edge2"])
additivepipe21.Transition = "Right corner"

doc.recompute()
